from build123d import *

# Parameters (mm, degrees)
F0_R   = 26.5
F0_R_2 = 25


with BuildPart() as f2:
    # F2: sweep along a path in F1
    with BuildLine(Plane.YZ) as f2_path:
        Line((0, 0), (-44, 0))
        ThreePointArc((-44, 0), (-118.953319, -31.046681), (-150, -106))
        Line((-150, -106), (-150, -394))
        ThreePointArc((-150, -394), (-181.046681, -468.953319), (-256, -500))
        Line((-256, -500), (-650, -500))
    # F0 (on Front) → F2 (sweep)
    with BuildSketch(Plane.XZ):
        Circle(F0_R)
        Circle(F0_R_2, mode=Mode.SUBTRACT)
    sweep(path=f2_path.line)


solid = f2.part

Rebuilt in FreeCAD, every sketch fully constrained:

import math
import FreeCAD as App
import Part
import Sketcher
from FreeCAD import Vector
Q = App.Units.Quantity

doc = App.newDocument("Part")
params = doc.addObject("Spreadsheet::Sheet", "Params")
for row, (alias, value) in enumerate([
    ("sketch1_diameter", "53 mm"),
    ("sketch1_diameter2", "50 mm"),
    ("sketch2_radius", "105.999999 mm"),
    ("sketch2_width", "44 mm"),
    ("sketch2_width2", "394 mm"),
    ("sketch2_height", "288 mm"),
], start=1):
    params.set(f"A{row}", alias)
    params.set(f"B{row}", "=" + value)
    params.setAlias(f"B{row}", alias)

body = doc.addObject("PartDesign::Body", "Body")

sketch1 = body.newObject("Sketcher::SketchObject", "Sketch")
sketch1.AttachmentSupport = (doc.getObject("XZ_Plane"), [""])
sketch1.MapMode = "FlatFace"
sketch1.addGeometry([
    Part.Circle(Vector(0, 0, 0), Vector(0, 0, 1), 26),
    Part.Circle(Vector(0, 0, 0), Vector(0, 0, 1), 25),
], False)
sketch1.addConstraint([
    Sketcher.Constraint("Coincident", 0, 3, -1, 1),
    Sketcher.Constraint("Coincident", 1, 3, -1, 1),
    Sketcher.Constraint("Diameter", 0, Q("53 mm")),
    Sketcher.Constraint("Diameter", 1, Q("50 mm")),
])
sketch1.setExpression("Constraints[2]", "Params.sketch1_diameter")
sketch1.setExpression("Constraints[3]", "Params.sketch1_diameter2")

sketch2 = body.newObject("Sketcher::SketchObject", "Sketch001")
sketch2.AttachmentSupport = (doc.getObject("YZ_Plane"), [""])
sketch2.MapMode = "FlatFace"
sketch2.addGeometry([
    Part.LineSegment(Vector(0, 0, 0), Vector(-44, 0, 0)),
    Part.ArcOfCircle(Part.Circle(Vector(-44, -106, 0), Vector(0, 0, 1), 106), math.radians(90), math.radians(180)),
    Part.LineSegment(Vector(-150, -106, 0), Vector(-150, -394, 0)),
    Part.ArcOfCircle(Part.Circle(Vector(-256, -394, 0), Vector(0, 0, 1), 106), math.radians(-90), math.radians(0)),
    Part.LineSegment(Vector(-256, -500, 0), Vector(-650, -500, 0)),
], False)
sketch2.addConstraint([
    Sketcher.Constraint("Tangent", 0, 2, 1, 1),
    Sketcher.Constraint("Tangent", 1, 2, 2, 1),
    Sketcher.Constraint("Tangent", 2, 2, 3, 2),
    Sketcher.Constraint("Tangent", 3, 1, 4, 1),
    Sketcher.Constraint("Horizontal", 0),
    Sketcher.Constraint("Vertical", 2),
    Sketcher.Constraint("Horizontal", 4),
    Sketcher.Constraint("Coincident", 0, 1, -1, 1),
    Sketcher.Constraint("Equal", 1, 3),
    Sketcher.Constraint("Radius", 1, Q("105.999999 mm")),
    Sketcher.Constraint("DistanceX", 0, 2, 0, 1, Q("44 mm")),
    Sketcher.Constraint("DistanceX", 4, 2, 4, 1, Q("394 mm")),
    Sketcher.Constraint("DistanceY", 2, 2, 2, 1, Q("288 mm")),
])
sketch2.setExpression("Constraints[9]", "Params.sketch2_radius")
sketch2.setExpression("Constraints[10]", "Params.sketch2_width")
sketch2.setExpression("Constraints[11]", "Params.sketch2_width2")
sketch2.setExpression("Constraints[12]", "Params.sketch2_height")
doc.recompute()

additivepipe = body.newObject("PartDesign::AdditivePipe", "AdditivePipe")
additivepipe.Profile = sketch1
additivepipe.Spine = (sketch2, ["Edge1", "Edge2", "Edge3", "Edge4", "Edge5"])

doc.recompute()
